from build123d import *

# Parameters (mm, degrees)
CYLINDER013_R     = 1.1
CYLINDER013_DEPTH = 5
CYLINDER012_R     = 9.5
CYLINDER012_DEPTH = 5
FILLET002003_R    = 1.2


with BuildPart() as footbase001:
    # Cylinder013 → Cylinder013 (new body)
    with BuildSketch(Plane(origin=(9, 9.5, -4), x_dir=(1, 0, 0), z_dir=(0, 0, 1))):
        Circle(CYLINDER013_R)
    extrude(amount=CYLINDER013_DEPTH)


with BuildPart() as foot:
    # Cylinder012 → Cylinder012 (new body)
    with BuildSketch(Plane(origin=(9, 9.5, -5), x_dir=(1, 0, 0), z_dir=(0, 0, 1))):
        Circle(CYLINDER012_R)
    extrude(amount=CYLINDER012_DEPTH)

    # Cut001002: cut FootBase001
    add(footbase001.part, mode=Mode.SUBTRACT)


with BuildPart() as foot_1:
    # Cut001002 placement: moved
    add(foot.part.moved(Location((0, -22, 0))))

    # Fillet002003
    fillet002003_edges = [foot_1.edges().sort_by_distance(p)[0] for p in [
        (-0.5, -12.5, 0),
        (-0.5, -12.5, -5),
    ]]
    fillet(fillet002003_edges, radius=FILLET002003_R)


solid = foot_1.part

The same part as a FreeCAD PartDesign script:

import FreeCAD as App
import Part
import Sketcher
Q = App.Units.Quantity


def edges_at(feature, points):
    """Names of the edges that pass closest to the given points."""
    edges = feature.Shape.Edges
    near = lambda p: min(range(len(edges)), key=lambda i: edges[i].distToShape(Part.Vertex(*p))[0])
    return sorted({f"Edge{near(p) + 1}" for p in points})

doc = App.newDocument("Part")
body = doc.addObject("PartDesign::Body", "Body")

# Sketch on XY plane
sketch1 = body.newObject("Sketcher::SketchObject", "Sketch")
sketch1.AttachmentSupport = (doc.getObject("XY_Plane"), [""])
sketch1.MapMode = "FlatFace"
sketch1.AttachmentOffset = App.Placement(App.Vector(0, 0, -4), App.Rotation())
sketch1.addGeometry(Part.Circle(App.Vector(9, 9.5, 0), App.Vector(0, 0, 1), 1.1), False)
sketch1.addConstraint([
    Sketcher.Constraint("Diameter", 0, Q("2.2 mm")),
    Sketcher.Constraint("DistanceX", -1, 1, 0, 3, Q("9 mm")),
    Sketcher.Constraint("DistanceY", -1, 1, 0, 3, Q("9.5 mm")),
])
pad1 = body.newObject("PartDesign::Pad", "Pad")
pad1.Profile = sketch1
pad1.Length = 5
body2 = doc.addObject("PartDesign::Body", "Body001")

# Sketch on XY plane
sketch2 = body2.newObject("Sketcher::SketchObject", "Sketch001")
sketch2.AttachmentSupport = (doc.getObject("XY_Plane001"), [""])
sketch2.MapMode = "FlatFace"
sketch2.AttachmentOffset = App.Placement(App.Vector(0, 0, -5), App.Rotation())
sketch2.addGeometry(Part.Circle(App.Vector(9, 10, 0), App.Vector(0, 0, 1), 10), False)
sketch2.addConstraint([
    Sketcher.Constraint("Diameter", 0, Q("19 mm")),
    Sketcher.Constraint("DistanceX", -1, 1, 0, 3, Q("9 mm")),
    Sketcher.Constraint("DistanceY", -1, 1, 0, 3, Q("9.5 mm")),
])
pad2 = body2.newObject("PartDesign::Pad", "Pad001")
pad2.Profile = sketch2
pad2.Length = 5
doc.recompute()

boolean = body2.newObject("PartDesign::Boolean", "Boolean")
boolean.Type = "Cut"
boolean.addObjects([body])
body3 = doc.addObject("PartDesign::Body", "Body002")
doc.recompute()

body2.Placement = App.Placement(App.Vector(0, -22, 0), App.Rotation(App.Vector(0, 0, 1), 0))
boolean2 = body3.newObject("PartDesign::Boolean", "Boolean001")
boolean2.Type = "Fuse"
boolean2.addObjects([body2])
doc.recompute()

fillet = body3.newObject("PartDesign::Fillet", "Fillet")
fillet.Base = (boolean2, edges_at(boolean2, [(-0.5, -12.5, 0), (-0.5, -12.5, -5)]))
fillet.Radius = 1.2

doc.recompute()
